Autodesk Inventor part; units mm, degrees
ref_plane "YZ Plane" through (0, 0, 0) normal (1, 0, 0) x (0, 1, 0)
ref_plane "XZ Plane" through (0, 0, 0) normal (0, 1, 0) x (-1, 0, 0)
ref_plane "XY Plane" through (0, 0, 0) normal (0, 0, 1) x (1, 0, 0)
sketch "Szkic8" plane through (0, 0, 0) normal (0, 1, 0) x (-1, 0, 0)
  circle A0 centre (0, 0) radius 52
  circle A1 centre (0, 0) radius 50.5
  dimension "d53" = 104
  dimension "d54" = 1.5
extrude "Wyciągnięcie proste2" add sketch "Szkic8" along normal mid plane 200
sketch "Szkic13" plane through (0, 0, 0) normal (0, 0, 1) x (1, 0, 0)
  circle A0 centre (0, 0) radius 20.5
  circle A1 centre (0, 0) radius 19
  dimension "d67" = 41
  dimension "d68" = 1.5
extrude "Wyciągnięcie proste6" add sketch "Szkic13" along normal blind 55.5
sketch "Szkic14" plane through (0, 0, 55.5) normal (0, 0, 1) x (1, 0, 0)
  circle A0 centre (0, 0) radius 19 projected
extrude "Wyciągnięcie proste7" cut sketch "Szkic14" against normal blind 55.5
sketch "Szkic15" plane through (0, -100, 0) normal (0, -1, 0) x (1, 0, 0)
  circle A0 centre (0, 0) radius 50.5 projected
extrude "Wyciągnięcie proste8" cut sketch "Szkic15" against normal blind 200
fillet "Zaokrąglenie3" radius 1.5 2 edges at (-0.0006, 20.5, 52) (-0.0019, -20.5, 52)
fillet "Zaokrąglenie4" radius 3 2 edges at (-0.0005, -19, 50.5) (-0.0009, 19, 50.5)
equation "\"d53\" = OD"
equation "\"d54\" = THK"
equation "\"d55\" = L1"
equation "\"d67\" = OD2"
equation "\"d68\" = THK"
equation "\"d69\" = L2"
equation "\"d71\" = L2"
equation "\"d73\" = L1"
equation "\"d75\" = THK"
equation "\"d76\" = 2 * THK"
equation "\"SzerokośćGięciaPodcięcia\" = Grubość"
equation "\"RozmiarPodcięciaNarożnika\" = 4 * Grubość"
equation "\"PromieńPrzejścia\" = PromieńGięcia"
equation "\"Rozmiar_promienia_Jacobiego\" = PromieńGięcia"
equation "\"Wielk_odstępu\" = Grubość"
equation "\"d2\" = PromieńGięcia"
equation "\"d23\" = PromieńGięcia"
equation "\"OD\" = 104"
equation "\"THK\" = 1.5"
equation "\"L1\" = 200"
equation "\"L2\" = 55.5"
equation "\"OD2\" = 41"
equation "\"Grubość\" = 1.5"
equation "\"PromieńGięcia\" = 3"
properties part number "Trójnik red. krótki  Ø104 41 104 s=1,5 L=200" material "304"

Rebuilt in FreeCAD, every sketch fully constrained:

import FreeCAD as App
import Part
import Sketcher
Q = App.Units.Quantity


def edges_at(feature, points):
    """Names of the edges that pass closest to the given points."""
    edges = feature.Shape.Edges
    near = lambda p: min(range(len(edges)), key=lambda i: edges[i].distToShape(Part.Vertex(*p))[0])
    return sorted({f"Edge{near(p) + 1}" for p in points})

doc = App.newDocument("Part")
body = doc.addObject("PartDesign::Body", "Body")

# Sketch on XZ plane
sketch1 = doc.addObject("Sketcher::SketchObject", "Sketch")
body.addObject(sketch1)
sketch1.AttachmentSupport = (doc.XZ_Plane, [""])
sketch1.MapMode = "FlatFace"
sketch1.addGeometry(Part.Circle(App.Vector(0, 0, 0), App.Vector(0, 0, 1), 52), False)
sketch1.addGeometry(Part.Circle(App.Vector(0, 0, 0), App.Vector(0, 0, 1), 50.5), False)
sketch1.addConstraint(Sketcher.Constraint("Coincident", 0, 3, -1, 1))
sketch1.addConstraint(Sketcher.Constraint("Coincident", 1, 3, -1, 1))
sketch1.addConstraint(Sketcher.Constraint("Diameter", 0, Q("104 mm")))
sketch1.addConstraint(Sketcher.Constraint("Diameter", 1, Q("101 mm")))
pad1 = doc.addObject("PartDesign::Pad", "Pad")
body.addObject(pad1)
pad1.Profile = sketch1
pad1.Length = 200
pad1.Midplane = True

# Sketch on XY plane
sketch2 = doc.addObject("Sketcher::SketchObject", "Sketch001")
body.addObject(sketch2)
sketch2.AttachmentSupport = (doc.XY_Plane, [""])
sketch2.MapMode = "FlatFace"
sketch2.addGeometry(Part.Circle(App.Vector(0, 0, 0), App.Vector(0, 0, 1), 20.5), False)
sketch2.addGeometry(Part.Circle(App.Vector(0, 0, 0), App.Vector(0, 0, 1), 19), False)
sketch2.addConstraint(Sketcher.Constraint("Coincident", 0, 3, -1, 1))
sketch2.addConstraint(Sketcher.Constraint("Coincident", 1, 3, -1, 1))
sketch2.addConstraint(Sketcher.Constraint("Diameter", 0, Q("41 mm")))
sketch2.addConstraint(Sketcher.Constraint("Diameter", 1, Q("38 mm")))
pad2 = doc.addObject("PartDesign::Pad", "Pad001")
body.addObject(pad2)
pad2.Profile = sketch2
pad2.Length = 55.5

# Sketch on XY plane
sketch3 = doc.addObject("Sketcher::SketchObject", "Sketch002")
body.addObject(sketch3)
sketch3.AttachmentSupport = (doc.XY_Plane, [""])
sketch3.MapMode = "FlatFace"
sketch3.AttachmentOffset = App.Placement(App.Vector(0, 0, 55.5), App.Rotation())
sketch3.addGeometry(Part.Circle(App.Vector(0, 0, 0), App.Vector(0, 0, 1), 19), False)
sketch3.addConstraint(Sketcher.Constraint("Coincident", 0, 3, -1, 1))
sketch3.addConstraint(Sketcher.Constraint("Diameter", 0, Q("38 mm")))
pocket1 = doc.addObject("PartDesign::Pocket", "Pocket")
body.addObject(pocket1)
pocket1.Profile = sketch3
pocket1.Length = 55.5

# Sketch on XZ plane
sketch4 = doc.addObject("Sketcher::SketchObject", "Sketch003")
body.addObject(sketch4)
sketch4.AttachmentSupport = (doc.XZ_Plane, [""])
sketch4.MapMode = "FlatFace"
sketch4.AttachmentOffset = App.Placement(App.Vector(0, 0, 100), App.Rotation())
sketch4.addGeometry(Part.Circle(App.Vector(0, 0, 0), App.Vector(0, 0, 1), 50.5), False)
sketch4.addConstraint(Sketcher.Constraint("Coincident", 0, 3, -1, 1))
sketch4.addConstraint(Sketcher.Constraint("Diameter", 0, Q("101 mm")))
pocket2 = doc.addObject("PartDesign::Pocket", "Pocket001")
body.addObject(pocket2)
pocket2.Profile = sketch4
pocket2.Length = 200
doc.recompute()

fillet = doc.addObject("PartDesign::Fillet", "Fillet")
body.addObject(fillet)
fillet.Base = (pocket2, edges_at(pocket2, [(-0.001, 20.5, 52), (-0.002, -20.5, 52)]))
fillet.Radius = 1.5
doc.recompute()

fillet2 = doc.addObject("PartDesign::Fillet", "Fillet001")
body.addObject(fillet2)
fillet2.Base = (fillet, edges_at(fillet, [(-0.001, -19, 50.5), (-0.001, 19, 50.5)]))
fillet2.Radius = 3

doc.recompute()
